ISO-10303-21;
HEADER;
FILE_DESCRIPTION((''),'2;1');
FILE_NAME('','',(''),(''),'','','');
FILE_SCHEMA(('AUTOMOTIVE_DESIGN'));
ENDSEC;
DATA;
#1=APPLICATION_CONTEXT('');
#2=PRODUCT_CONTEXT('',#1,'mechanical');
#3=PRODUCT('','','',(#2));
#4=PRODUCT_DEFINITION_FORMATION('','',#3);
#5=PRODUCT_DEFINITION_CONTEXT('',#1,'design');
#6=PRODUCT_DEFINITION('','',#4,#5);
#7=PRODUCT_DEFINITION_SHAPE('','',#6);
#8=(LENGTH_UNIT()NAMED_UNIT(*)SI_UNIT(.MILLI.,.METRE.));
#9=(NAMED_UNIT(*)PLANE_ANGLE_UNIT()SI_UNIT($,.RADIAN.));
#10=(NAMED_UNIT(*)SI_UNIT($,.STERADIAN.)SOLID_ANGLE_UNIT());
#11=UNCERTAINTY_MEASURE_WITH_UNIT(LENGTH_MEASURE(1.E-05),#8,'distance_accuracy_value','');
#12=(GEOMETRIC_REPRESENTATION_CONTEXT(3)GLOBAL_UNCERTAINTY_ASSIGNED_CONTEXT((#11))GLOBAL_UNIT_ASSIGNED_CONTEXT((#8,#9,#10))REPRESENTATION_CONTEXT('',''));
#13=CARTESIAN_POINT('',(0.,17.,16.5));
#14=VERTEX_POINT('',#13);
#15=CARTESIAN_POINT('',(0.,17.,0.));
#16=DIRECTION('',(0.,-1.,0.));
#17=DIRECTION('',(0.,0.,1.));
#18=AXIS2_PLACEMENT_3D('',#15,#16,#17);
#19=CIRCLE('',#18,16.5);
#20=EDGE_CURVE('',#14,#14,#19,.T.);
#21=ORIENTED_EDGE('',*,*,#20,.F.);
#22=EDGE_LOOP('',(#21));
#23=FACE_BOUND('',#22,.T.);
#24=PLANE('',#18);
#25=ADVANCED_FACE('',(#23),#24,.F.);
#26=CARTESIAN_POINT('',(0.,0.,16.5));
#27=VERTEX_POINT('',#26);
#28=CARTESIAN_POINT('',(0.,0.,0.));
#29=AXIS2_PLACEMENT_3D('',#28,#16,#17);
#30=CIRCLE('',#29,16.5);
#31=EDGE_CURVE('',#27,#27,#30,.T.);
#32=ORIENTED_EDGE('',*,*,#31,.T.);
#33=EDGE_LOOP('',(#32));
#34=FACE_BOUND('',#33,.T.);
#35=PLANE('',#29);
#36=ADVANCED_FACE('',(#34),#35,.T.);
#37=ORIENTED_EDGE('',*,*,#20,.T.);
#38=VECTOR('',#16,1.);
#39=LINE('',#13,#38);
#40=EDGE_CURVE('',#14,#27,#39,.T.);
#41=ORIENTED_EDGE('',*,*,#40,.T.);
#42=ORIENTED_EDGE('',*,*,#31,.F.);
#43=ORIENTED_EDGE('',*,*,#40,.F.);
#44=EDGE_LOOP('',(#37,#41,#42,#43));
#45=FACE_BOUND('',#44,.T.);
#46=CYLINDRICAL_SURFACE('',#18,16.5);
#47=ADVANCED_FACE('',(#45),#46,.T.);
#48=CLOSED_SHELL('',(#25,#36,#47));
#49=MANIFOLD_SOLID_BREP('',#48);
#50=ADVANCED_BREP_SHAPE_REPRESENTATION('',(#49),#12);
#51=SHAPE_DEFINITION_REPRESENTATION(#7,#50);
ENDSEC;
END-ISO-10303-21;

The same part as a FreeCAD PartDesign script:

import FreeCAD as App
import Part
import Sketcher

V = App.Vector
Q = App.Units.Quantity


def add_polygon(sketch, points):
    """Adds a closed chain of lines whose ends are joined by coincident constraints."""
    first, n = sketch.GeometryCount, len(points)
    for a, b in zip(points, points[1:] + points[:1]):
        sketch.addGeometry(Part.LineSegment(App.Vector(*a, 0), App.Vector(*b, 0)), False)
    for i in range(n):
        sketch.addConstraint(Sketcher.Constraint("Coincident", first + i, 2, first + (i + 1) % n, 1))

doc = App.newDocument("Part")
body = doc.addObject("PartDesign::Body", "Body")

# Sketch on YZ plane
sketch1 = body.newObject("Sketcher::SketchObject", "Sketch")
sketch1.AttachmentSupport = (doc.getObject("YZ_Plane"), [""])
sketch1.MapMode = "FlatFace"
add_polygon(sketch1, [(0, 0), (17, 0), (17, 16), (0, 16)])  # lines 0-3
sketch1.addConstraint([
    Sketcher.Constraint("Horizontal", 0),
    Sketcher.Constraint("Vertical", 1),
    Sketcher.Constraint("Horizontal", 2),
    Sketcher.Constraint("Vertical", 3),
    Sketcher.Constraint("Coincident", 3, 2, -1, 1),
    Sketcher.Constraint("DistanceX", 0, 1, 0, 2, Q("17 mm")),
    Sketcher.Constraint("DistanceY", 1, 1, 1, 2, Q("16.5 mm")),
])
revolution = body.newObject("PartDesign::Revolution", "Revolution")
revolution.Profile = sketch1
revolution.ReferenceAxis = (sketch1, ["H_Axis"])
revolution.Angle = 360

doc.recompute()
